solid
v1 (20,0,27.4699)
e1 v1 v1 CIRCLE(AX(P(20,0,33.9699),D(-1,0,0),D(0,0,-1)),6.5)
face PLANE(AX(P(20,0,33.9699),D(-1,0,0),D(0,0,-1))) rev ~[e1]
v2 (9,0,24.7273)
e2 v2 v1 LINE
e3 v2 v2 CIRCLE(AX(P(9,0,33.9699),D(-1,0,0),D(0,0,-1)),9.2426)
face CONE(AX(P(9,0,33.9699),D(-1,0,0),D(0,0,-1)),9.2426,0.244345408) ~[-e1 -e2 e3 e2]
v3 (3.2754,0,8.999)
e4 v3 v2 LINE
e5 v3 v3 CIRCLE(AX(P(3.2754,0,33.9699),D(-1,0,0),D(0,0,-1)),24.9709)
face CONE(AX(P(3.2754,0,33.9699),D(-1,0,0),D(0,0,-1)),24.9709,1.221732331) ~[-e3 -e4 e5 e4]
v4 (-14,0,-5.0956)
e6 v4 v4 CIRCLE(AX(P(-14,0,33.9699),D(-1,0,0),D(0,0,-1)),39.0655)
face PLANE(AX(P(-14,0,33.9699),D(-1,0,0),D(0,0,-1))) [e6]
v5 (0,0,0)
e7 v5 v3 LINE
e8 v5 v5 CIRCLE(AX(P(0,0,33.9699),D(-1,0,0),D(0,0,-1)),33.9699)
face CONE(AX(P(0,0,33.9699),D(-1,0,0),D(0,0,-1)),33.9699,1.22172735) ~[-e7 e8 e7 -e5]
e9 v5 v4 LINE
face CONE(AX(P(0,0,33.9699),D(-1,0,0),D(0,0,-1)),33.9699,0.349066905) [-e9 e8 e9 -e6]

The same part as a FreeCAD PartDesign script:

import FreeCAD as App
import Part
import Sketcher
from FreeCAD import Vector
Q = App.Units.Quantity

doc = App.newDocument("Part")
params = doc.addObject("Spreadsheet::Sheet", "Params")
for row, (alias, value) in enumerate([
    ("sketch1_width", "34 mm"),
    ("sketch1_height", "6.5 mm"),
    ("revolution_angle", "360 deg"),
], start=1):
    params.set(f"A{row}", alias)
    params.set(f"B{row}", "=" + value)
    params.setAlias(f"B{row}", alias)

body = doc.addObject("PartDesign::Body", "Body")

# Sketch on XZ plane
sketch1 = doc.addObject("Sketcher::SketchObject", "Sketch")
body.addObject(sketch1)
sketch1.AttachmentSupport = (doc.XZ_Plane, [""])
sketch1.MapMode = "FlatFace"
sketch1.addGeometry([
    Part.LineSegment(Vector(20, 27, 0), Vector(20, 34, 0)),  # 0
    Part.LineSegment(Vector(20, 34, 0), Vector(-14, 34, 0)),  # 1
    Part.LineSegment(Vector(-14, 34, 0), Vector(-14, -5, 0)),  # 2
    Part.LineSegment(Vector(-14, -5, 0), Vector(0, 0, 0)),  # 3
    Part.LineSegment(Vector(0, 0, 0), Vector(3, 9, 0)),  # 4
    Part.LineSegment(Vector(3, 9, 0), Vector(9, 25, 0)),  # 5
    Part.LineSegment(Vector(9, 25, 0), Vector(20, 27, 0)),  # 6
], False)
sketch1.addGeometry(Part.LineSegment(Vector(20, 34, 0), Vector(-14, 34, 0)), True)  # axis
sketch1.addConstraint([
    Sketcher.Constraint("Coincident", 0, 2, 1, 1),
    Sketcher.Constraint("Coincident", 1, 2, 2, 1),
    Sketcher.Constraint("Coincident", 2, 2, 3, 1),
    Sketcher.Constraint("Coincident", 3, 2, 4, 1),
    Sketcher.Constraint("Coincident", 4, 2, 5, 1),
    Sketcher.Constraint("Coincident", 5, 2, 6, 1),
    Sketcher.Constraint("Coincident", 6, 2, 0, 1),
    Sketcher.Constraint("Vertical", 0),
    Sketcher.Constraint("Horizontal", 1),
    Sketcher.Constraint("Vertical", 2),
    Sketcher.Constraint("Horizontal", 7),
    Sketcher.Constraint("Coincident", 3, 2, -1, 1),
    Sketcher.Constraint("Coincident", 7, 1, 0, 2),
    Sketcher.Constraint("Parallel", 4, 5),
    Sketcher.Constraint("Vertical", 2, 2, 7, 2),
    Sketcher.Constraint("DistanceX", 1, 2, 1, 1, Q("34 mm")),
    Sketcher.Constraint("Angle", 3, Q("20 deg")),
    Sketcher.Constraint("Angle", 4, Q("69.9998 deg")),
    Sketcher.Constraint("Angle", 6, Q("14 deg")),
    Sketcher.Constraint("DistanceY", 0, 1, 0, 2, Q("6.5 mm")),
    Sketcher.Constraint("DistanceX", -1, 1, 0, 2, Q("20 mm")),
    Sketcher.Constraint("DistanceX", -1, 1, 5, 2, Q("9 mm")),
    Sketcher.Constraint("DistanceY", -1, 1, 4, 2, Q("8.999 mm")),
])
sketch1.setExpression("Constraints[15]", "Params.sketch1_width")
sketch1.setExpression("Constraints[19]", "Params.sketch1_height")
revolution = doc.addObject("PartDesign::Revolution", "Revolution")
body.addObject(revolution)
revolution.Profile = sketch1
revolution.ReferenceAxis = (sketch1, ["Axis0"])
revolution.setExpression("Angle", "Params.revolution_angle")

doc.recompute()
